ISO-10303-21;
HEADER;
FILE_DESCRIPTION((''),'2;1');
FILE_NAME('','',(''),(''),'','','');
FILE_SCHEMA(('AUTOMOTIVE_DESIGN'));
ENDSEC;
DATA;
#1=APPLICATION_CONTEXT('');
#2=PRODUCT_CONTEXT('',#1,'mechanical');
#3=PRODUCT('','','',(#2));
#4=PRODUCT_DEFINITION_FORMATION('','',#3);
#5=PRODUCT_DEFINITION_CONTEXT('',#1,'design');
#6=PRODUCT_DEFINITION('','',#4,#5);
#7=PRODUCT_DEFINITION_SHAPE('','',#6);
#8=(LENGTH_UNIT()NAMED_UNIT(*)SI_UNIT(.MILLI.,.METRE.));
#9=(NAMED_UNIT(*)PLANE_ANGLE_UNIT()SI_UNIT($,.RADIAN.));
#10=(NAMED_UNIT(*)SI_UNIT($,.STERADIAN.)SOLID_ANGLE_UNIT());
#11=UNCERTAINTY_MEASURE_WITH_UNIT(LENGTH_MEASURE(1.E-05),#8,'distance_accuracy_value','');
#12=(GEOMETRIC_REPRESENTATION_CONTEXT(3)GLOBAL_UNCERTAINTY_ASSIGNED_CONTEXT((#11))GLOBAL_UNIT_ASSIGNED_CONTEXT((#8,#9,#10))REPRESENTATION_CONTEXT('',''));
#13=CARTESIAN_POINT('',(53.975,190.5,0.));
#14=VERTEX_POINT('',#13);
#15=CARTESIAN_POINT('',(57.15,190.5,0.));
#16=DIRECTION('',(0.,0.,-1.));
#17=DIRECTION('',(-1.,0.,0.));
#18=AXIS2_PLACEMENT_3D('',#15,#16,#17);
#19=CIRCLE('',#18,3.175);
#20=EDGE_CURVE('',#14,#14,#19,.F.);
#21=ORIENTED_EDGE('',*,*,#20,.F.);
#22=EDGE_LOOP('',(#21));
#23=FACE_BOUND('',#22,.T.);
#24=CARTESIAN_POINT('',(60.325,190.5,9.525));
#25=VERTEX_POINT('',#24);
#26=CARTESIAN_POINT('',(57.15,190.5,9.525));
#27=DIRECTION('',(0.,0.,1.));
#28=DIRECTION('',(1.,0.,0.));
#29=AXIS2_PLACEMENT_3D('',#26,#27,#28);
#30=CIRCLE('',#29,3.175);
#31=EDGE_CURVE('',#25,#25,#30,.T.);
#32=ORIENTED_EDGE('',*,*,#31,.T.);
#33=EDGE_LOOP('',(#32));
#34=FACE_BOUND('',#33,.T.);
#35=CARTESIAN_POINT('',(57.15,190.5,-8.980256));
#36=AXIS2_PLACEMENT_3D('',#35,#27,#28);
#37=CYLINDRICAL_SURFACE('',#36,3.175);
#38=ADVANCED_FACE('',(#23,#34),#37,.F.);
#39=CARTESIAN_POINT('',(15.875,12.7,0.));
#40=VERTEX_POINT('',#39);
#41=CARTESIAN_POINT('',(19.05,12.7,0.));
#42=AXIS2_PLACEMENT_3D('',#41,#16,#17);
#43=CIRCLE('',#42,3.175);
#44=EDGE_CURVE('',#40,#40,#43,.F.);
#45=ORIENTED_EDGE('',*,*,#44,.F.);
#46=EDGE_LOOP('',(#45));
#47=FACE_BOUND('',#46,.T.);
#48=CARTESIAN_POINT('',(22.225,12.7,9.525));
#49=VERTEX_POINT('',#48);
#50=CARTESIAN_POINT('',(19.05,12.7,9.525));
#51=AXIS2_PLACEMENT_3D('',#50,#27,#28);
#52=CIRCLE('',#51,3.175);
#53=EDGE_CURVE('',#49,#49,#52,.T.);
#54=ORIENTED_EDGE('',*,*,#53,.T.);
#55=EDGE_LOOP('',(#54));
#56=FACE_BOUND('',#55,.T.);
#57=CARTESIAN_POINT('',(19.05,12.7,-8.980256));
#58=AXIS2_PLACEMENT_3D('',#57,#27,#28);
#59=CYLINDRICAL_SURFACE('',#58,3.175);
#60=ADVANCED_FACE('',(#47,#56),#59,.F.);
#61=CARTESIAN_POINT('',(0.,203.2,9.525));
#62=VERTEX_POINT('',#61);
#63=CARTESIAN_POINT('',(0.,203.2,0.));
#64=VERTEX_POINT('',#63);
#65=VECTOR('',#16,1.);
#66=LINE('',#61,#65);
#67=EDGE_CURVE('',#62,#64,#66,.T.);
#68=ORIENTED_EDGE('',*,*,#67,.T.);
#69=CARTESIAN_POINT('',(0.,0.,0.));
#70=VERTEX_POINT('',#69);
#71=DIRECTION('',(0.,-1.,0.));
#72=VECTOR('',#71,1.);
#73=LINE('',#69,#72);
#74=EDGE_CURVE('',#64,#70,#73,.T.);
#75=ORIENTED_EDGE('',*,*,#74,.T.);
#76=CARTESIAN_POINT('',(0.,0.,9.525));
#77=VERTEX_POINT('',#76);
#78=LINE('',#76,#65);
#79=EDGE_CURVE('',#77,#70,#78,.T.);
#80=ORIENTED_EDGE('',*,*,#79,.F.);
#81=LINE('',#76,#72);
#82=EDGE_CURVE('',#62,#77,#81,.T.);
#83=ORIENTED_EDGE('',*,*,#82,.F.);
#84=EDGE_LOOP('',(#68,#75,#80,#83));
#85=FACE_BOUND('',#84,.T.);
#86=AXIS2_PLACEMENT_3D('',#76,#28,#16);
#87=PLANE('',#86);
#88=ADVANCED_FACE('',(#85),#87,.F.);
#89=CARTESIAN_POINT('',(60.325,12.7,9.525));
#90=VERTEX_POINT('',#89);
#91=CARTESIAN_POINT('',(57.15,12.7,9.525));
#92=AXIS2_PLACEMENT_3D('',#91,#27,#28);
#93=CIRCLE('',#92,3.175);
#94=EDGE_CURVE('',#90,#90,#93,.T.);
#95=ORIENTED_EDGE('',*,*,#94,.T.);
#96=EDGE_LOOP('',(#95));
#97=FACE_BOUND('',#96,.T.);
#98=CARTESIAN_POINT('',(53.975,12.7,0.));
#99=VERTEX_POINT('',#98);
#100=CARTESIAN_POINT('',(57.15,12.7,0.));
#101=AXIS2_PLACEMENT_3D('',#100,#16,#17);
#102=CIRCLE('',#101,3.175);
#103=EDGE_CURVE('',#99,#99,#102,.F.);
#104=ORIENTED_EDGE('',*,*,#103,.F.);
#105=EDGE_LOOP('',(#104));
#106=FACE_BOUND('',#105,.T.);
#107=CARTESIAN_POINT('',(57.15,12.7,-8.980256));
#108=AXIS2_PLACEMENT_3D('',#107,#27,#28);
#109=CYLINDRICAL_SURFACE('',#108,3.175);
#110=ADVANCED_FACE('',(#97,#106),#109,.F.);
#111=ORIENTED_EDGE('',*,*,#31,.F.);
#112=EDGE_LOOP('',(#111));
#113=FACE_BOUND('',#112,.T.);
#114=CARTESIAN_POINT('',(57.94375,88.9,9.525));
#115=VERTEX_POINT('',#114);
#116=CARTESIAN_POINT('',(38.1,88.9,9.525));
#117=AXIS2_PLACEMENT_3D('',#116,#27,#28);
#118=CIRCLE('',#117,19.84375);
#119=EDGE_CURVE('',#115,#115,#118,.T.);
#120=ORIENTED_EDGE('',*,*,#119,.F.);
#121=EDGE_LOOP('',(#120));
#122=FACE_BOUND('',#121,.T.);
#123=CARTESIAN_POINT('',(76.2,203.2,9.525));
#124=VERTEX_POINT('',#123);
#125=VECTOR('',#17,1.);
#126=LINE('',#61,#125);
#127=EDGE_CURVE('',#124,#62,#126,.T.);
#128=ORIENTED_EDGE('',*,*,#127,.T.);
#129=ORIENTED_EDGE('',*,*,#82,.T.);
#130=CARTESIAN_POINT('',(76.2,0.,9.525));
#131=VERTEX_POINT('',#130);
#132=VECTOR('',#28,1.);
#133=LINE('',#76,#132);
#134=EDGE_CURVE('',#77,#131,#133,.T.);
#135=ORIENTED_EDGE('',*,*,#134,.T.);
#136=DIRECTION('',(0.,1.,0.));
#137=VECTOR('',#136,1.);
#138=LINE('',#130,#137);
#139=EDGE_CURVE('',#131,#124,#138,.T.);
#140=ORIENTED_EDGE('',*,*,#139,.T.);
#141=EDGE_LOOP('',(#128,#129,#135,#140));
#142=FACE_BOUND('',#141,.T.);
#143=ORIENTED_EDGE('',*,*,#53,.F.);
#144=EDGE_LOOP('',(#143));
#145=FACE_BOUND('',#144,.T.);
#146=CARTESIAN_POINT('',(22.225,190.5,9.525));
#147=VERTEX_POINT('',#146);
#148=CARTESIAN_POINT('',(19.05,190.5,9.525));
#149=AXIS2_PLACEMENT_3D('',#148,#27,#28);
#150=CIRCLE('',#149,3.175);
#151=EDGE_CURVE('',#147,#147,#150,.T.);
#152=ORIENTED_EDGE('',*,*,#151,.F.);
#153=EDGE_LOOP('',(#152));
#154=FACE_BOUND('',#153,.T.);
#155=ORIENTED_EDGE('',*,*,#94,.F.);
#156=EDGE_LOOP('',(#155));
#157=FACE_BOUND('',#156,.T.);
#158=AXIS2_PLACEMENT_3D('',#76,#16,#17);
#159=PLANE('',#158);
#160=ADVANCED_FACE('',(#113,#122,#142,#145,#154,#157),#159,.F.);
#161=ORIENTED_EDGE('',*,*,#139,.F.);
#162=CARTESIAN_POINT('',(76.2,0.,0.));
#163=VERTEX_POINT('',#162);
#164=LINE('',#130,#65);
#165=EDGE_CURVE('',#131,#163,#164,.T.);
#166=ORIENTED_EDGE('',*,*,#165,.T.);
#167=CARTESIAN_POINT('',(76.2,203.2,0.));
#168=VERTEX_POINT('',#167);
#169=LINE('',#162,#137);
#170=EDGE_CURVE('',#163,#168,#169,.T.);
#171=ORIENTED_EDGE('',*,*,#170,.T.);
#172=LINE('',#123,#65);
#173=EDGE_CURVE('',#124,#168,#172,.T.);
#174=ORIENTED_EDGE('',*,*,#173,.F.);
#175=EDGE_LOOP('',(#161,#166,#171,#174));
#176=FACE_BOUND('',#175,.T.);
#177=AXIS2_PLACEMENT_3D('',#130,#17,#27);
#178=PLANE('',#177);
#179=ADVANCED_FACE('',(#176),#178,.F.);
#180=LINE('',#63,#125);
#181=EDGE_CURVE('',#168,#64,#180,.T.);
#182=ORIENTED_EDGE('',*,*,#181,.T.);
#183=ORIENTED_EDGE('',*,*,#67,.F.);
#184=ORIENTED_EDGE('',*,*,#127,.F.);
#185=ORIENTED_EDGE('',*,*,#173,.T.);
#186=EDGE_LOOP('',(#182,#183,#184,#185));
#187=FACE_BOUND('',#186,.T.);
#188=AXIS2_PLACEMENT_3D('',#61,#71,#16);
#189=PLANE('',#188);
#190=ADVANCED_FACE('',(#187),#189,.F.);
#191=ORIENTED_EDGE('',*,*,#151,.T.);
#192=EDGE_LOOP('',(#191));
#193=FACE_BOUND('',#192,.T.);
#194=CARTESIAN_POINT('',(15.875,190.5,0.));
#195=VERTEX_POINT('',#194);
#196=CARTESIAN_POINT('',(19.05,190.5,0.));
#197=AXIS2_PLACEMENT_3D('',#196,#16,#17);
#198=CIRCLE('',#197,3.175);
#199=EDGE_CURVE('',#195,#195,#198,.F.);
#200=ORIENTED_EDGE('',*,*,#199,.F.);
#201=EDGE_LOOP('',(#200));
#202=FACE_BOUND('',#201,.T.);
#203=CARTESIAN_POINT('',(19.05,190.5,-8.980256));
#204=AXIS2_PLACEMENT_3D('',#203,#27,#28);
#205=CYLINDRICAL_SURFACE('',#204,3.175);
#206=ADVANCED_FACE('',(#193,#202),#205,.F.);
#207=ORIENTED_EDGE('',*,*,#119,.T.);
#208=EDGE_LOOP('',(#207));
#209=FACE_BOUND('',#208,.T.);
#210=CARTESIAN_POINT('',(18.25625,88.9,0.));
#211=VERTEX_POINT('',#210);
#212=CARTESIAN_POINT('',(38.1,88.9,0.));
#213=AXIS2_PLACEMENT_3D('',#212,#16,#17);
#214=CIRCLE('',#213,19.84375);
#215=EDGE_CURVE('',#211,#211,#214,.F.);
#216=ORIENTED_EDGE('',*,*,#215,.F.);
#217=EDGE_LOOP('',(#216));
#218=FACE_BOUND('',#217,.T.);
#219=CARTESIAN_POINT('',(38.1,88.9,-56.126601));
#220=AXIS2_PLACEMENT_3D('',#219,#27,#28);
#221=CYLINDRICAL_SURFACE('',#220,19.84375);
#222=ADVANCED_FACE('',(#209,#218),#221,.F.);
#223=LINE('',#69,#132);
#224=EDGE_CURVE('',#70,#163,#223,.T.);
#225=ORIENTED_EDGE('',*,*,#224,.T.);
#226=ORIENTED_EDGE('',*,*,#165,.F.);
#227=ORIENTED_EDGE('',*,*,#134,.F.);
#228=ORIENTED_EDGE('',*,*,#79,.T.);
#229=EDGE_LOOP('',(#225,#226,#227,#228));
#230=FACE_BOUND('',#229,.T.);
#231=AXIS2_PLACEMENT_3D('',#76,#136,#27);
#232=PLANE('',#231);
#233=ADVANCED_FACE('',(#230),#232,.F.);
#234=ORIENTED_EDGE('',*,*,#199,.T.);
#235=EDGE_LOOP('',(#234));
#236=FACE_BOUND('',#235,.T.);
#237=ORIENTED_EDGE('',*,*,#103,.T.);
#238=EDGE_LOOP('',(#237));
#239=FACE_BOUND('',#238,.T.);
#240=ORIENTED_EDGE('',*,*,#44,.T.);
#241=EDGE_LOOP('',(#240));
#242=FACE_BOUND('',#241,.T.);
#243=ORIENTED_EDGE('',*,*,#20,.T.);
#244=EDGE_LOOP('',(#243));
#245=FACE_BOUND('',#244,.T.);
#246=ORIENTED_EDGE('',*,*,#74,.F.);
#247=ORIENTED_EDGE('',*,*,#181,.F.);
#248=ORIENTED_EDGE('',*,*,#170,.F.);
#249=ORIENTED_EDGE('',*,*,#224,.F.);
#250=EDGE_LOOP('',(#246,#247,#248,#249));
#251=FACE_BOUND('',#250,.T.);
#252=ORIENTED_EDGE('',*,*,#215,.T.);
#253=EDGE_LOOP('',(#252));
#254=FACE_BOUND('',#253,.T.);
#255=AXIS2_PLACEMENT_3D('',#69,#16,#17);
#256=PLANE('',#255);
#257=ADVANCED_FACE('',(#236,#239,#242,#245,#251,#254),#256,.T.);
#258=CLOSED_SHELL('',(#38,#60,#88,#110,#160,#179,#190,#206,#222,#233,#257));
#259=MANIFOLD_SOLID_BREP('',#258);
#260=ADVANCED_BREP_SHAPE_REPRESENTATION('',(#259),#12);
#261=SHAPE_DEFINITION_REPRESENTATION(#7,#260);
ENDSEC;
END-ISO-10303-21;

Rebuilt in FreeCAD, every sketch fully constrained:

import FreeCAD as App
import Part
import Sketcher
from FreeCAD import Vector
Q = App.Units.Quantity


def add_polygon(sketch, points):
    """Adds a closed chain of lines whose ends are joined by coincident constraints."""
    first, n = sketch.GeometryCount, len(points)
    for a, b in zip(points, points[1:] + points[:1]):
        sketch.addGeometry(Part.LineSegment(App.Vector(*a, 0), App.Vector(*b, 0)), False)
    for i in range(n):
        sketch.addConstraint(Sketcher.Constraint("Coincident", first + i, 2, first + (i + 1) % n, 1))

doc = App.newDocument("Part")
body = doc.addObject("PartDesign::Body", "Body")

# Sketch on XY plane
sketch1 = body.newObject("Sketcher::SketchObject", "Sketch")
sketch1.AttachmentSupport = (doc.getObject("XY_Plane"), [""])
sketch1.MapMode = "FlatFace"
add_polygon(sketch1, [(0, 203), (0, 0), (76, 0), (76, 203)])  # lines 0-3
sketch1.addConstraint([
    Sketcher.Constraint("Vertical", 0),
    Sketcher.Constraint("Horizontal", 1),
    Sketcher.Constraint("Vertical", 2),
    Sketcher.Constraint("Horizontal", 3),
    Sketcher.Constraint("Coincident", 0, 2, -1, 1),
    Sketcher.Constraint("DistanceX", 1, 1, 1, 2, Q("3 in")),
    Sketcher.Constraint("DistanceY", 0, 2, 0, 1, Q("8 in")),
])
pad1 = body.newObject("PartDesign::Pad", "Pad")
pad1.Profile = sketch1
pad1.Length = Q("0.375 in")

# Sketch on XY plane
sketch2 = body.newObject("Sketcher::SketchObject", "Sketch001")
sketch2.AttachmentSupport = (doc.getObject("XY_Plane"), [""])
sketch2.MapMode = "FlatFace"
sketch2.AttachmentOffset = App.Placement(Vector(0, 0, 0.375 * 25.4), App.Rotation())
sketch2.addGeometry(Part.Circle(Vector(38, 89, 0), Vector(0, 0, 1), 20), False)
sketch2.addConstraint([
    Sketcher.Constraint("Diameter", 0, Q("1.5625 in")),
    Sketcher.Constraint("DistanceX", -1, 1, 0, 3, Q("1.5 in")),
    Sketcher.Constraint("DistanceY", -1, 1, 0, 3, Q("3.5 in")),
])
pocket1 = body.newObject("PartDesign::Pocket", "Pocket")
pocket1.Profile = sketch2
pocket1.Length = Q("0.375 in")

# Sketch on XY plane
sketch3 = body.newObject("Sketcher::SketchObject", "Sketch002")
sketch3.AttachmentSupport = (doc.getObject("XY_Plane"), [""])
sketch3.MapMode = "FlatFace"
sketch3.AttachmentOffset = App.Placement(Vector(0, 0, 0.375 * 25.4), App.Rotation())
sketch3.addGeometry([
    Part.Circle(Vector(19.1, 190.5, 0), Vector(0, 0, 1), 3.2),
    Part.Circle(Vector(57.1, 190.5, 0), Vector(0, 0, 1), 3.2),
    Part.Circle(Vector(19.1, 12.7, 0), Vector(0, 0, 1), 3.2),
    Part.Circle(Vector(57.1, 12.7, 0), Vector(0, 0, 1), 3.2),
], False)
sketch3.addConstraint([
    Sketcher.Constraint("Equal", 0, 1),
    Sketcher.Constraint("Equal", 1, 2),
    Sketcher.Constraint("Equal", 2, 3),
    Sketcher.Constraint("Horizontal", 0, 3, 1, 3),
    Sketcher.Constraint("Horizontal", 2, 3, 3, 3),
    Sketcher.Constraint("Vertical", 0, 3, 2, 3),
    Sketcher.Constraint("Vertical", 1, 3, 3, 3),
    Sketcher.Constraint("Diameter", 0, Q("0.25 in")),
    Sketcher.Constraint("DistanceY", 2, 3, 0, 3, Q("7 in")),
    Sketcher.Constraint("DistanceY", -1, 1, 0, 3, Q("7.5 in")),
    Sketcher.Constraint("DistanceX", 0, 3, 1, 3, Q("1.5 in")),
    Sketcher.Constraint("DistanceX", -1, 1, 0, 3, Q("0.75 in")),
])
pocket2 = body.newObject("PartDesign::Pocket", "Pocket001")
pocket2.Profile = sketch3
pocket2.Length = Q("0.375 in")

doc.recompute()
